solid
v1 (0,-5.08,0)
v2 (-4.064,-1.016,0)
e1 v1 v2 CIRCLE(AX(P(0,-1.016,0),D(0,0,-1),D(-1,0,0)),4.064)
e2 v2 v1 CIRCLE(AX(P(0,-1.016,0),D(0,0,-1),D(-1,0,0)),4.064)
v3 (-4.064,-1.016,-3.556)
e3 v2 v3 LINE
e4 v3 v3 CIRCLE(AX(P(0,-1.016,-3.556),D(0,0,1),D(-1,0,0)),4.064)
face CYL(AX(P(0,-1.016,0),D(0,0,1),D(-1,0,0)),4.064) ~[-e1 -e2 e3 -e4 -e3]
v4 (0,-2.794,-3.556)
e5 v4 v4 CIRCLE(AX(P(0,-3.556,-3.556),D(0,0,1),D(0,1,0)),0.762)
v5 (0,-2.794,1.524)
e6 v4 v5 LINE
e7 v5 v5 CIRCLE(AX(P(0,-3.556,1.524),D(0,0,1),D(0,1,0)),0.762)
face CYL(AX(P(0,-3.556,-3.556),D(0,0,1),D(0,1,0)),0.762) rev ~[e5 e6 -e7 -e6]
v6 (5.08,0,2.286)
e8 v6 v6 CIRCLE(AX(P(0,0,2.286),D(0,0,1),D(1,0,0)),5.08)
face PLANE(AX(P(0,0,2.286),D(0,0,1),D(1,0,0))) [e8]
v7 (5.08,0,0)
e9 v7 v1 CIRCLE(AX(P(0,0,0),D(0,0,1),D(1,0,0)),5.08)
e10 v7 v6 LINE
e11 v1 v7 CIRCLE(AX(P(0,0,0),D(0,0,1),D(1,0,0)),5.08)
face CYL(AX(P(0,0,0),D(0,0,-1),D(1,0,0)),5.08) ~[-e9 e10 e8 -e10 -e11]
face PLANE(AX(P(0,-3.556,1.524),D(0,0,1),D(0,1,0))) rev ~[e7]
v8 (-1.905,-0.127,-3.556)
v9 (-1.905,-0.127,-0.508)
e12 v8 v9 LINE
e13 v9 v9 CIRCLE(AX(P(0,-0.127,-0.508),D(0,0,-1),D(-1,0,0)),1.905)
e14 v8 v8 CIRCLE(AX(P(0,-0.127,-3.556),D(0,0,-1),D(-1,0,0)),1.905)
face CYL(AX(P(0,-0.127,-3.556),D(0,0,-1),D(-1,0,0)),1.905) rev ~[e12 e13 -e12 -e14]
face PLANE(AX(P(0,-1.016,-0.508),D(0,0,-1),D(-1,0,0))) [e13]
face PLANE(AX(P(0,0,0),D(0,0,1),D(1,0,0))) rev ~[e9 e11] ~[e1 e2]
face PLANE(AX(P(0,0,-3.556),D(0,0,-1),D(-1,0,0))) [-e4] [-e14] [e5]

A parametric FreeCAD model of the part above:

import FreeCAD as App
import Part
import Sketcher
from FreeCAD import Vector
Q = App.Units.Quantity

doc = App.newDocument("Part")
params = doc.addObject("Spreadsheet::Sheet", "Params")
for row, (alias, value) in enumerate([
    ("sketch1_diameter", "0.4 in"),
    ("pad1_length", "0.09 in"),
    ("sketch2_diameter", "0.32 in"),
    ("pad2_length", "0.14 in"),
    ("sketch3_diameter", "0.06 in"),
    ("hole_diameter", "0.06 in"),
    ("hole_depth", "0.2 in"),
    ("sketch4_diameter", "0.15 in"),
    ("pocket1_length", "0.12 in"),
], start=1):
    params.set(f"A{row}", alias)
    params.set(f"B{row}", "=" + value)
    params.setAlias(f"B{row}", alias)

body = doc.addObject("PartDesign::Body", "Body")

sketch1 = body.newObject("Sketcher::SketchObject", "Sketch")
sketch1.AttachmentSupport = (doc.getObject("XY_Plane"), [""])
sketch1.MapMode = "FlatFace"
sketch1.addGeometry(Part.Circle(Vector(0, 0, 0), Vector(0, 0, 1), 5), False)
sketch1.addConstraint([
    Sketcher.Constraint("Coincident", 0, 3, -1, 1),
    Sketcher.Constraint("Diameter", 0, Q("0.4 in")),
])
sketch1.setExpression("Constraints[1]", "Params.sketch1_diameter")
pad1 = body.newObject("PartDesign::Pad", "Pad")
pad1.Profile = sketch1
pad1.setExpression("Length", "Params.pad1_length")

sketch2 = body.newObject("Sketcher::SketchObject", "Sketch001")
sketch2.AttachmentSupport = (doc.getObject("XY_Plane"), [""])
sketch2.MapMode = "FlatFace"
sketch2.addGeometry(Part.Circle(Vector(0, -1, 0), Vector(0, 0, 1), 4.1), False)
sketch2.addConstraint([
    Sketcher.Constraint("PointOnObject", 0, 3, -2),
    Sketcher.Constraint("Diameter", 0, Q("0.32 in")),
    Sketcher.Constraint("DistanceY", 0, 3, -1, 1, Q("0.04 in")),
])
sketch2.setExpression("Constraints[1]", "Params.sketch2_diameter")
pad2 = body.newObject("PartDesign::Pad", "Pad001")
pad2.Profile = sketch2
pad2.setExpression("Length", "Params.pad2_length")
pad2.Reversed = True

sketch3 = body.newObject("Sketcher::SketchObject", "Sketch002")
sketch3.AttachmentSupport = (doc.getObject("XY_Plane"), [""])
sketch3.MapMode = "FlatFace"
sketch3.AttachmentOffset = App.Placement(Vector(0, 0, -0.14 * 25.4), App.Rotation())
sketch3.addGeometry(Part.Circle(Vector(0, -3.6, 0), Vector(0, 0, 1), 0.8), False)
sketch3.addConstraint([
    Sketcher.Constraint("PointOnObject", 0, 3, -2),
    Sketcher.Constraint("Diameter", 0, Q("0.06 in")),
    Sketcher.Constraint("DistanceY", 0, 3, -1, 1, Q("0.14 in")),
])
sketch3.setExpression("Constraints[1]", "Params.sketch3_diameter")
doc.recompute()
hole = body.newObject("PartDesign::Hole", "Hole")
hole.Profile = sketch3
hole.ThreadType = "None"
hole.setExpression("Diameter", "Params.hole_diameter")
hole.DepthType = "Dimension"
hole.setExpression("Depth", "Params.hole_depth")
hole.DrillPoint = "Flat"
hole.Reversed = True

sketch4 = body.newObject("Sketcher::SketchObject", "Sketch003")
sketch4.AttachmentSupport = (doc.getObject("XY_Plane"), [""])
sketch4.MapMode = "FlatFace"
sketch4.AttachmentOffset = App.Placement(Vector(0, 0, -0.14 * 25.4), App.Rotation())
sketch4.addGeometry(Part.Circle(Vector(0, -0.1, 0), Vector(0, 0, 1), 1.9), False)
sketch4.addConstraint([
    Sketcher.Constraint("PointOnObject", 0, 3, -2),
    Sketcher.Constraint("Diameter", 0, Q("0.15 in")),
    Sketcher.Constraint("DistanceY", 0, 3, -1, 1, Q("0.005 in")),
])
sketch4.setExpression("Constraints[1]", "Params.sketch4_diameter")
pocket1 = body.newObject("PartDesign::Pocket", "Pocket")
pocket1.Profile = sketch4
pocket1.setExpression("Length", "Params.pocket1_length")
pocket1.Reversed = True

doc.recompute()
